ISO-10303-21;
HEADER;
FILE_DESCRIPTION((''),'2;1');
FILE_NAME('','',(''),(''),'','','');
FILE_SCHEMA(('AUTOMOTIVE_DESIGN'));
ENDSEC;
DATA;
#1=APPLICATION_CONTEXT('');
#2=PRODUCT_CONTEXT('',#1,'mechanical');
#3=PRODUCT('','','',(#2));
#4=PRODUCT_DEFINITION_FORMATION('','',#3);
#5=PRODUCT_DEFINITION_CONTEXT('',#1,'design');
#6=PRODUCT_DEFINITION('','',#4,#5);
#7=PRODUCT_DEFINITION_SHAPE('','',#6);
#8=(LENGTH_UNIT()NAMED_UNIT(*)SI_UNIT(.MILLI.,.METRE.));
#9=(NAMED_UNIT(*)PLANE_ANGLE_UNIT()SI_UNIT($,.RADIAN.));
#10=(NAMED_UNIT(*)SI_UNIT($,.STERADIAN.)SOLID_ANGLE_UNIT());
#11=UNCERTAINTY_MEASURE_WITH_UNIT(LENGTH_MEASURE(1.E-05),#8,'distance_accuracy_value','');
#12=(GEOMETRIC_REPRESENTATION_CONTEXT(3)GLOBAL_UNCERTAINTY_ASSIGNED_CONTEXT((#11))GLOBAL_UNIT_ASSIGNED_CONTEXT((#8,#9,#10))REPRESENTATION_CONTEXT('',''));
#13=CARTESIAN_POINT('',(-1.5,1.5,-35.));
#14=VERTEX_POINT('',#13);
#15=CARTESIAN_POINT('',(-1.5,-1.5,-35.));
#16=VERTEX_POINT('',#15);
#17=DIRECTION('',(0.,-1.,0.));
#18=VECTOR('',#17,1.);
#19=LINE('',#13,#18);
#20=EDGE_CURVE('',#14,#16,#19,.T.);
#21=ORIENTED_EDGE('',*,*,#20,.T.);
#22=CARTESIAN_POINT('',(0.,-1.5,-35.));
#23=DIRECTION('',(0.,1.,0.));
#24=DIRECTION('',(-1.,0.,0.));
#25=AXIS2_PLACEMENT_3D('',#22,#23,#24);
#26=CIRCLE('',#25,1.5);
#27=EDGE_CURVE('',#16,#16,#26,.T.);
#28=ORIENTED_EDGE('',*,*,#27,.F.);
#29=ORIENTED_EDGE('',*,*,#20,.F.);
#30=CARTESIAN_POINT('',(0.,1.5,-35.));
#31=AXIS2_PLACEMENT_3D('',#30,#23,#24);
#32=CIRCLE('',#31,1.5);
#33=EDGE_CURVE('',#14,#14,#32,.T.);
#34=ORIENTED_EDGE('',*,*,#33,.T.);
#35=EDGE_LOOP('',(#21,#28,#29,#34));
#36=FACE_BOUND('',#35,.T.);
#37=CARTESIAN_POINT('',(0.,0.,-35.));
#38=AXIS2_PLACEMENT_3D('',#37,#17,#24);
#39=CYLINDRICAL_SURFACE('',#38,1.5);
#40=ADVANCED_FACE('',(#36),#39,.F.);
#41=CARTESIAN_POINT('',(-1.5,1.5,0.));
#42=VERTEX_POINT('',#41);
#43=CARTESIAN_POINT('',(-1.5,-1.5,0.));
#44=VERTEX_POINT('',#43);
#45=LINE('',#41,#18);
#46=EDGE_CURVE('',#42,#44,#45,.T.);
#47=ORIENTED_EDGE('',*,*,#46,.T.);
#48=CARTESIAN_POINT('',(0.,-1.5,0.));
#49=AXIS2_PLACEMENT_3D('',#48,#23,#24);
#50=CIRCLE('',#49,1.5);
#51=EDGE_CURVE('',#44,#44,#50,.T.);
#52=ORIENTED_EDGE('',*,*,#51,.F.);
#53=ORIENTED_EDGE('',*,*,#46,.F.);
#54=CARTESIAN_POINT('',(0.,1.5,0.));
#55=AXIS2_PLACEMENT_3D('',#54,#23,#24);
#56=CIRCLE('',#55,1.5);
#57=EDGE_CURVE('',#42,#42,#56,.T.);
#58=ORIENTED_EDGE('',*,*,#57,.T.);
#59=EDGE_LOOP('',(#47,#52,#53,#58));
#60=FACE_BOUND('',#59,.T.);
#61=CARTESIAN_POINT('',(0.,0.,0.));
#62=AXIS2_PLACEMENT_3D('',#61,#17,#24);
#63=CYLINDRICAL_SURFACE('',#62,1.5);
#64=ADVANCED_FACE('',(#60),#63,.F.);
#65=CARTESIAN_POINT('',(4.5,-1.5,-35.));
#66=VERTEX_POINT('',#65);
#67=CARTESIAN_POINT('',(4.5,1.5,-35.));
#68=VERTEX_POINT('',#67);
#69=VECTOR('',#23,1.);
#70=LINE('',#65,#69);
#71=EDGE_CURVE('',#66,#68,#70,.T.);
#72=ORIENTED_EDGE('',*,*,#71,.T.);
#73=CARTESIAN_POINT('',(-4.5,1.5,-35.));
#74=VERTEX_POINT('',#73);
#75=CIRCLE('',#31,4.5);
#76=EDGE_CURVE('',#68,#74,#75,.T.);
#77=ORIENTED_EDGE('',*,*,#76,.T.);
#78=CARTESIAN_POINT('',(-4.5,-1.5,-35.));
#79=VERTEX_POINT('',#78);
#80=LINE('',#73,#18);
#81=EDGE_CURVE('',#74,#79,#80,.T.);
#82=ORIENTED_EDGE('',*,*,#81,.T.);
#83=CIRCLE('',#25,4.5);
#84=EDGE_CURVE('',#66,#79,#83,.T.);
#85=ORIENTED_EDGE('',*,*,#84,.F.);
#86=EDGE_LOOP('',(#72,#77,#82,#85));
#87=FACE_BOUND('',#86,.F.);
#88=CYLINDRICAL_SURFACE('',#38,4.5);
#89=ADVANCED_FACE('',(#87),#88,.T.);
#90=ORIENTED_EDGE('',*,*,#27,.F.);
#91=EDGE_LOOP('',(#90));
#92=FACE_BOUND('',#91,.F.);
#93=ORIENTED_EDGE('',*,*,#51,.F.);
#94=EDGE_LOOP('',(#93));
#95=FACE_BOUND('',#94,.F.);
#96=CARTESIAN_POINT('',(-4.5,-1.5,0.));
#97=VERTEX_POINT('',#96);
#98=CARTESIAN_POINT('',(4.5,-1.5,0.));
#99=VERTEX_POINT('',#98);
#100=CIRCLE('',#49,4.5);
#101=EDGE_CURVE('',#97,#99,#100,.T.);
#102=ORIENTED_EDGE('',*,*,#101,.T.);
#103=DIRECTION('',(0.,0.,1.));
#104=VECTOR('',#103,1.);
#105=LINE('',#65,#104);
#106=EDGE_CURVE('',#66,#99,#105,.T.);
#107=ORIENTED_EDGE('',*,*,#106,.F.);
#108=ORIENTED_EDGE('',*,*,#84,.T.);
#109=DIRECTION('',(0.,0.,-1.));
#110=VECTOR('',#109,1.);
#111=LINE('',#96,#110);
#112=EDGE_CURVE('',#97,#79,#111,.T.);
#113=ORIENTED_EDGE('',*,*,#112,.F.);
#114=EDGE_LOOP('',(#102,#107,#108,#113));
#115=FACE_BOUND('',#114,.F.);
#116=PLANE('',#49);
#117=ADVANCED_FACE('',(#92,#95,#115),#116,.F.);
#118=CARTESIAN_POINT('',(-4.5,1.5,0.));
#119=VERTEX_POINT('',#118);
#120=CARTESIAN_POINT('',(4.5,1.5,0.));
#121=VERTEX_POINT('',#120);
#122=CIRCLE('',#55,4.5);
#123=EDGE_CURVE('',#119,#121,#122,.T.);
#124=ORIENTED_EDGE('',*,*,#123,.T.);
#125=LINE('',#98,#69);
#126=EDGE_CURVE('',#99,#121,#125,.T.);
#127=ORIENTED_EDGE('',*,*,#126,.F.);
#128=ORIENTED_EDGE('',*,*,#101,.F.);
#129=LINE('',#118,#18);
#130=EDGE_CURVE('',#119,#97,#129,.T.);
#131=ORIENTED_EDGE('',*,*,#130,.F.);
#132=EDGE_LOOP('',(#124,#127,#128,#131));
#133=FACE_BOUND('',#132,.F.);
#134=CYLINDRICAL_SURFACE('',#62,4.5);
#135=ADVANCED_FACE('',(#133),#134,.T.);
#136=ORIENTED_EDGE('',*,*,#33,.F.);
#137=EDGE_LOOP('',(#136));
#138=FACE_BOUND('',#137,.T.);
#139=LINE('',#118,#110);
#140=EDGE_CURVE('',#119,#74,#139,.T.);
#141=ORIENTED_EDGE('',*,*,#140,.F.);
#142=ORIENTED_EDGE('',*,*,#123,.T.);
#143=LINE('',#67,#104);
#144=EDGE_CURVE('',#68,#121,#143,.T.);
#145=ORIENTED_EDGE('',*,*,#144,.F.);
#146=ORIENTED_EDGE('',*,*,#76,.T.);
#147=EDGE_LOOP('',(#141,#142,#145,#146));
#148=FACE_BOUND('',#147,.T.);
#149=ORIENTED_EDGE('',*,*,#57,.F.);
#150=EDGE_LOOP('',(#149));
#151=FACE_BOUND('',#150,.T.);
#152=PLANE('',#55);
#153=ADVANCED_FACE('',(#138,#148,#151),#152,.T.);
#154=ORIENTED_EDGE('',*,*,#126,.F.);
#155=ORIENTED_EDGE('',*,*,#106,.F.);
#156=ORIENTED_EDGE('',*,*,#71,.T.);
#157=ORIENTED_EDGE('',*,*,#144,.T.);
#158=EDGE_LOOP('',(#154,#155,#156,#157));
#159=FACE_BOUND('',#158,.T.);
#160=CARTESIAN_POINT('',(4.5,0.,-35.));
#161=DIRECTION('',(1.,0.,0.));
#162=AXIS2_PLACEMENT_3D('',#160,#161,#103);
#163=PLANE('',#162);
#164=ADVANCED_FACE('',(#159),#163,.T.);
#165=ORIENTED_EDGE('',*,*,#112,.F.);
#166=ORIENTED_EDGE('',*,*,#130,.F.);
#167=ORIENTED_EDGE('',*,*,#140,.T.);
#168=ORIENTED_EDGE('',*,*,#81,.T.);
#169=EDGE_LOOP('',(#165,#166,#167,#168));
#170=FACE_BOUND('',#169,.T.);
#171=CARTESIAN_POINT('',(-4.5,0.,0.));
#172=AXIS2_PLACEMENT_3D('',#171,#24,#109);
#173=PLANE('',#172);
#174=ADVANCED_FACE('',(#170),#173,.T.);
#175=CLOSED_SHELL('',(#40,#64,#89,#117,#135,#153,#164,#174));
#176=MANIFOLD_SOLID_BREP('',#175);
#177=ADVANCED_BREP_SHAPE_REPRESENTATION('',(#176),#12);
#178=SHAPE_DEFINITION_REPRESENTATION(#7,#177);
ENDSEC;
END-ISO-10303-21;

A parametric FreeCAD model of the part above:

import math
import FreeCAD as App
import Part
import Sketcher

doc = App.newDocument("Part")
body = doc.addObject("PartDesign::Body", "Body")

sketch1 = doc.addObject("Sketcher::SketchObject", "Sketch")
body.addObject(sketch1)
sketch1.AttachmentSupport = (doc.XZ_Plane, [""])
sketch1.MapMode = "FlatFace"
sketch1.addGeometry([
    Part.ArcOfCircle(Part.Circle(App.Vector(0, 0, 0), App.Vector(0, 0, 1), 4.5), math.radians(0), math.radians(180)),
    Part.LineSegment(App.Vector(4.5, 0, 0), App.Vector(4.5, -35, 0)),
    Part.ArcOfCircle(Part.Circle(App.Vector(0, -35, 0), App.Vector(0, 0, 1), 4.5), math.radians(180), math.radians(360)),
    Part.LineSegment(App.Vector(-4.5, -35, 0), App.Vector(-4.5, 0, 0)),
    Part.Circle(App.Vector(0, 0, 0), App.Vector(0, 0, 1), 1.5),
    Part.Circle(App.Vector(0, -35, 0), App.Vector(0, 0, 1), 1.5),
], False)
sketch1.addConstraint([
    Sketcher.Constraint("Tangent", 0, 1, 1, 1),
    Sketcher.Constraint("Tangent", 1, 2, 2, 2),
    Sketcher.Constraint("Tangent", 2, 1, 3, 1),
    Sketcher.Constraint("Tangent", 3, 2, 0, 2),
    Sketcher.Constraint("Vertical", 1),
    Sketcher.Constraint("Vertical", 3),
    Sketcher.Constraint("Coincident", 0, 3, -1, 1),
    Sketcher.Constraint("Coincident", 4, 3, -1, 1),
    Sketcher.Constraint("Coincident", 5, 3, 2, 3),
    Sketcher.Constraint("Equal", 4, 5),
    Sketcher.Constraint("Diameter", 4, 3.0),
    Sketcher.Constraint("DistanceY", 1, 2, 1, 1, 35.0),
    Sketcher.Constraint("Radius", 0, 4.5),
])
pad1 = doc.addObject("PartDesign::Pad", "Pad")
body.addObject(pad1)
pad1.Profile = sketch1
pad1.Length = 3
pad1.Midplane = True

doc.recompute()
